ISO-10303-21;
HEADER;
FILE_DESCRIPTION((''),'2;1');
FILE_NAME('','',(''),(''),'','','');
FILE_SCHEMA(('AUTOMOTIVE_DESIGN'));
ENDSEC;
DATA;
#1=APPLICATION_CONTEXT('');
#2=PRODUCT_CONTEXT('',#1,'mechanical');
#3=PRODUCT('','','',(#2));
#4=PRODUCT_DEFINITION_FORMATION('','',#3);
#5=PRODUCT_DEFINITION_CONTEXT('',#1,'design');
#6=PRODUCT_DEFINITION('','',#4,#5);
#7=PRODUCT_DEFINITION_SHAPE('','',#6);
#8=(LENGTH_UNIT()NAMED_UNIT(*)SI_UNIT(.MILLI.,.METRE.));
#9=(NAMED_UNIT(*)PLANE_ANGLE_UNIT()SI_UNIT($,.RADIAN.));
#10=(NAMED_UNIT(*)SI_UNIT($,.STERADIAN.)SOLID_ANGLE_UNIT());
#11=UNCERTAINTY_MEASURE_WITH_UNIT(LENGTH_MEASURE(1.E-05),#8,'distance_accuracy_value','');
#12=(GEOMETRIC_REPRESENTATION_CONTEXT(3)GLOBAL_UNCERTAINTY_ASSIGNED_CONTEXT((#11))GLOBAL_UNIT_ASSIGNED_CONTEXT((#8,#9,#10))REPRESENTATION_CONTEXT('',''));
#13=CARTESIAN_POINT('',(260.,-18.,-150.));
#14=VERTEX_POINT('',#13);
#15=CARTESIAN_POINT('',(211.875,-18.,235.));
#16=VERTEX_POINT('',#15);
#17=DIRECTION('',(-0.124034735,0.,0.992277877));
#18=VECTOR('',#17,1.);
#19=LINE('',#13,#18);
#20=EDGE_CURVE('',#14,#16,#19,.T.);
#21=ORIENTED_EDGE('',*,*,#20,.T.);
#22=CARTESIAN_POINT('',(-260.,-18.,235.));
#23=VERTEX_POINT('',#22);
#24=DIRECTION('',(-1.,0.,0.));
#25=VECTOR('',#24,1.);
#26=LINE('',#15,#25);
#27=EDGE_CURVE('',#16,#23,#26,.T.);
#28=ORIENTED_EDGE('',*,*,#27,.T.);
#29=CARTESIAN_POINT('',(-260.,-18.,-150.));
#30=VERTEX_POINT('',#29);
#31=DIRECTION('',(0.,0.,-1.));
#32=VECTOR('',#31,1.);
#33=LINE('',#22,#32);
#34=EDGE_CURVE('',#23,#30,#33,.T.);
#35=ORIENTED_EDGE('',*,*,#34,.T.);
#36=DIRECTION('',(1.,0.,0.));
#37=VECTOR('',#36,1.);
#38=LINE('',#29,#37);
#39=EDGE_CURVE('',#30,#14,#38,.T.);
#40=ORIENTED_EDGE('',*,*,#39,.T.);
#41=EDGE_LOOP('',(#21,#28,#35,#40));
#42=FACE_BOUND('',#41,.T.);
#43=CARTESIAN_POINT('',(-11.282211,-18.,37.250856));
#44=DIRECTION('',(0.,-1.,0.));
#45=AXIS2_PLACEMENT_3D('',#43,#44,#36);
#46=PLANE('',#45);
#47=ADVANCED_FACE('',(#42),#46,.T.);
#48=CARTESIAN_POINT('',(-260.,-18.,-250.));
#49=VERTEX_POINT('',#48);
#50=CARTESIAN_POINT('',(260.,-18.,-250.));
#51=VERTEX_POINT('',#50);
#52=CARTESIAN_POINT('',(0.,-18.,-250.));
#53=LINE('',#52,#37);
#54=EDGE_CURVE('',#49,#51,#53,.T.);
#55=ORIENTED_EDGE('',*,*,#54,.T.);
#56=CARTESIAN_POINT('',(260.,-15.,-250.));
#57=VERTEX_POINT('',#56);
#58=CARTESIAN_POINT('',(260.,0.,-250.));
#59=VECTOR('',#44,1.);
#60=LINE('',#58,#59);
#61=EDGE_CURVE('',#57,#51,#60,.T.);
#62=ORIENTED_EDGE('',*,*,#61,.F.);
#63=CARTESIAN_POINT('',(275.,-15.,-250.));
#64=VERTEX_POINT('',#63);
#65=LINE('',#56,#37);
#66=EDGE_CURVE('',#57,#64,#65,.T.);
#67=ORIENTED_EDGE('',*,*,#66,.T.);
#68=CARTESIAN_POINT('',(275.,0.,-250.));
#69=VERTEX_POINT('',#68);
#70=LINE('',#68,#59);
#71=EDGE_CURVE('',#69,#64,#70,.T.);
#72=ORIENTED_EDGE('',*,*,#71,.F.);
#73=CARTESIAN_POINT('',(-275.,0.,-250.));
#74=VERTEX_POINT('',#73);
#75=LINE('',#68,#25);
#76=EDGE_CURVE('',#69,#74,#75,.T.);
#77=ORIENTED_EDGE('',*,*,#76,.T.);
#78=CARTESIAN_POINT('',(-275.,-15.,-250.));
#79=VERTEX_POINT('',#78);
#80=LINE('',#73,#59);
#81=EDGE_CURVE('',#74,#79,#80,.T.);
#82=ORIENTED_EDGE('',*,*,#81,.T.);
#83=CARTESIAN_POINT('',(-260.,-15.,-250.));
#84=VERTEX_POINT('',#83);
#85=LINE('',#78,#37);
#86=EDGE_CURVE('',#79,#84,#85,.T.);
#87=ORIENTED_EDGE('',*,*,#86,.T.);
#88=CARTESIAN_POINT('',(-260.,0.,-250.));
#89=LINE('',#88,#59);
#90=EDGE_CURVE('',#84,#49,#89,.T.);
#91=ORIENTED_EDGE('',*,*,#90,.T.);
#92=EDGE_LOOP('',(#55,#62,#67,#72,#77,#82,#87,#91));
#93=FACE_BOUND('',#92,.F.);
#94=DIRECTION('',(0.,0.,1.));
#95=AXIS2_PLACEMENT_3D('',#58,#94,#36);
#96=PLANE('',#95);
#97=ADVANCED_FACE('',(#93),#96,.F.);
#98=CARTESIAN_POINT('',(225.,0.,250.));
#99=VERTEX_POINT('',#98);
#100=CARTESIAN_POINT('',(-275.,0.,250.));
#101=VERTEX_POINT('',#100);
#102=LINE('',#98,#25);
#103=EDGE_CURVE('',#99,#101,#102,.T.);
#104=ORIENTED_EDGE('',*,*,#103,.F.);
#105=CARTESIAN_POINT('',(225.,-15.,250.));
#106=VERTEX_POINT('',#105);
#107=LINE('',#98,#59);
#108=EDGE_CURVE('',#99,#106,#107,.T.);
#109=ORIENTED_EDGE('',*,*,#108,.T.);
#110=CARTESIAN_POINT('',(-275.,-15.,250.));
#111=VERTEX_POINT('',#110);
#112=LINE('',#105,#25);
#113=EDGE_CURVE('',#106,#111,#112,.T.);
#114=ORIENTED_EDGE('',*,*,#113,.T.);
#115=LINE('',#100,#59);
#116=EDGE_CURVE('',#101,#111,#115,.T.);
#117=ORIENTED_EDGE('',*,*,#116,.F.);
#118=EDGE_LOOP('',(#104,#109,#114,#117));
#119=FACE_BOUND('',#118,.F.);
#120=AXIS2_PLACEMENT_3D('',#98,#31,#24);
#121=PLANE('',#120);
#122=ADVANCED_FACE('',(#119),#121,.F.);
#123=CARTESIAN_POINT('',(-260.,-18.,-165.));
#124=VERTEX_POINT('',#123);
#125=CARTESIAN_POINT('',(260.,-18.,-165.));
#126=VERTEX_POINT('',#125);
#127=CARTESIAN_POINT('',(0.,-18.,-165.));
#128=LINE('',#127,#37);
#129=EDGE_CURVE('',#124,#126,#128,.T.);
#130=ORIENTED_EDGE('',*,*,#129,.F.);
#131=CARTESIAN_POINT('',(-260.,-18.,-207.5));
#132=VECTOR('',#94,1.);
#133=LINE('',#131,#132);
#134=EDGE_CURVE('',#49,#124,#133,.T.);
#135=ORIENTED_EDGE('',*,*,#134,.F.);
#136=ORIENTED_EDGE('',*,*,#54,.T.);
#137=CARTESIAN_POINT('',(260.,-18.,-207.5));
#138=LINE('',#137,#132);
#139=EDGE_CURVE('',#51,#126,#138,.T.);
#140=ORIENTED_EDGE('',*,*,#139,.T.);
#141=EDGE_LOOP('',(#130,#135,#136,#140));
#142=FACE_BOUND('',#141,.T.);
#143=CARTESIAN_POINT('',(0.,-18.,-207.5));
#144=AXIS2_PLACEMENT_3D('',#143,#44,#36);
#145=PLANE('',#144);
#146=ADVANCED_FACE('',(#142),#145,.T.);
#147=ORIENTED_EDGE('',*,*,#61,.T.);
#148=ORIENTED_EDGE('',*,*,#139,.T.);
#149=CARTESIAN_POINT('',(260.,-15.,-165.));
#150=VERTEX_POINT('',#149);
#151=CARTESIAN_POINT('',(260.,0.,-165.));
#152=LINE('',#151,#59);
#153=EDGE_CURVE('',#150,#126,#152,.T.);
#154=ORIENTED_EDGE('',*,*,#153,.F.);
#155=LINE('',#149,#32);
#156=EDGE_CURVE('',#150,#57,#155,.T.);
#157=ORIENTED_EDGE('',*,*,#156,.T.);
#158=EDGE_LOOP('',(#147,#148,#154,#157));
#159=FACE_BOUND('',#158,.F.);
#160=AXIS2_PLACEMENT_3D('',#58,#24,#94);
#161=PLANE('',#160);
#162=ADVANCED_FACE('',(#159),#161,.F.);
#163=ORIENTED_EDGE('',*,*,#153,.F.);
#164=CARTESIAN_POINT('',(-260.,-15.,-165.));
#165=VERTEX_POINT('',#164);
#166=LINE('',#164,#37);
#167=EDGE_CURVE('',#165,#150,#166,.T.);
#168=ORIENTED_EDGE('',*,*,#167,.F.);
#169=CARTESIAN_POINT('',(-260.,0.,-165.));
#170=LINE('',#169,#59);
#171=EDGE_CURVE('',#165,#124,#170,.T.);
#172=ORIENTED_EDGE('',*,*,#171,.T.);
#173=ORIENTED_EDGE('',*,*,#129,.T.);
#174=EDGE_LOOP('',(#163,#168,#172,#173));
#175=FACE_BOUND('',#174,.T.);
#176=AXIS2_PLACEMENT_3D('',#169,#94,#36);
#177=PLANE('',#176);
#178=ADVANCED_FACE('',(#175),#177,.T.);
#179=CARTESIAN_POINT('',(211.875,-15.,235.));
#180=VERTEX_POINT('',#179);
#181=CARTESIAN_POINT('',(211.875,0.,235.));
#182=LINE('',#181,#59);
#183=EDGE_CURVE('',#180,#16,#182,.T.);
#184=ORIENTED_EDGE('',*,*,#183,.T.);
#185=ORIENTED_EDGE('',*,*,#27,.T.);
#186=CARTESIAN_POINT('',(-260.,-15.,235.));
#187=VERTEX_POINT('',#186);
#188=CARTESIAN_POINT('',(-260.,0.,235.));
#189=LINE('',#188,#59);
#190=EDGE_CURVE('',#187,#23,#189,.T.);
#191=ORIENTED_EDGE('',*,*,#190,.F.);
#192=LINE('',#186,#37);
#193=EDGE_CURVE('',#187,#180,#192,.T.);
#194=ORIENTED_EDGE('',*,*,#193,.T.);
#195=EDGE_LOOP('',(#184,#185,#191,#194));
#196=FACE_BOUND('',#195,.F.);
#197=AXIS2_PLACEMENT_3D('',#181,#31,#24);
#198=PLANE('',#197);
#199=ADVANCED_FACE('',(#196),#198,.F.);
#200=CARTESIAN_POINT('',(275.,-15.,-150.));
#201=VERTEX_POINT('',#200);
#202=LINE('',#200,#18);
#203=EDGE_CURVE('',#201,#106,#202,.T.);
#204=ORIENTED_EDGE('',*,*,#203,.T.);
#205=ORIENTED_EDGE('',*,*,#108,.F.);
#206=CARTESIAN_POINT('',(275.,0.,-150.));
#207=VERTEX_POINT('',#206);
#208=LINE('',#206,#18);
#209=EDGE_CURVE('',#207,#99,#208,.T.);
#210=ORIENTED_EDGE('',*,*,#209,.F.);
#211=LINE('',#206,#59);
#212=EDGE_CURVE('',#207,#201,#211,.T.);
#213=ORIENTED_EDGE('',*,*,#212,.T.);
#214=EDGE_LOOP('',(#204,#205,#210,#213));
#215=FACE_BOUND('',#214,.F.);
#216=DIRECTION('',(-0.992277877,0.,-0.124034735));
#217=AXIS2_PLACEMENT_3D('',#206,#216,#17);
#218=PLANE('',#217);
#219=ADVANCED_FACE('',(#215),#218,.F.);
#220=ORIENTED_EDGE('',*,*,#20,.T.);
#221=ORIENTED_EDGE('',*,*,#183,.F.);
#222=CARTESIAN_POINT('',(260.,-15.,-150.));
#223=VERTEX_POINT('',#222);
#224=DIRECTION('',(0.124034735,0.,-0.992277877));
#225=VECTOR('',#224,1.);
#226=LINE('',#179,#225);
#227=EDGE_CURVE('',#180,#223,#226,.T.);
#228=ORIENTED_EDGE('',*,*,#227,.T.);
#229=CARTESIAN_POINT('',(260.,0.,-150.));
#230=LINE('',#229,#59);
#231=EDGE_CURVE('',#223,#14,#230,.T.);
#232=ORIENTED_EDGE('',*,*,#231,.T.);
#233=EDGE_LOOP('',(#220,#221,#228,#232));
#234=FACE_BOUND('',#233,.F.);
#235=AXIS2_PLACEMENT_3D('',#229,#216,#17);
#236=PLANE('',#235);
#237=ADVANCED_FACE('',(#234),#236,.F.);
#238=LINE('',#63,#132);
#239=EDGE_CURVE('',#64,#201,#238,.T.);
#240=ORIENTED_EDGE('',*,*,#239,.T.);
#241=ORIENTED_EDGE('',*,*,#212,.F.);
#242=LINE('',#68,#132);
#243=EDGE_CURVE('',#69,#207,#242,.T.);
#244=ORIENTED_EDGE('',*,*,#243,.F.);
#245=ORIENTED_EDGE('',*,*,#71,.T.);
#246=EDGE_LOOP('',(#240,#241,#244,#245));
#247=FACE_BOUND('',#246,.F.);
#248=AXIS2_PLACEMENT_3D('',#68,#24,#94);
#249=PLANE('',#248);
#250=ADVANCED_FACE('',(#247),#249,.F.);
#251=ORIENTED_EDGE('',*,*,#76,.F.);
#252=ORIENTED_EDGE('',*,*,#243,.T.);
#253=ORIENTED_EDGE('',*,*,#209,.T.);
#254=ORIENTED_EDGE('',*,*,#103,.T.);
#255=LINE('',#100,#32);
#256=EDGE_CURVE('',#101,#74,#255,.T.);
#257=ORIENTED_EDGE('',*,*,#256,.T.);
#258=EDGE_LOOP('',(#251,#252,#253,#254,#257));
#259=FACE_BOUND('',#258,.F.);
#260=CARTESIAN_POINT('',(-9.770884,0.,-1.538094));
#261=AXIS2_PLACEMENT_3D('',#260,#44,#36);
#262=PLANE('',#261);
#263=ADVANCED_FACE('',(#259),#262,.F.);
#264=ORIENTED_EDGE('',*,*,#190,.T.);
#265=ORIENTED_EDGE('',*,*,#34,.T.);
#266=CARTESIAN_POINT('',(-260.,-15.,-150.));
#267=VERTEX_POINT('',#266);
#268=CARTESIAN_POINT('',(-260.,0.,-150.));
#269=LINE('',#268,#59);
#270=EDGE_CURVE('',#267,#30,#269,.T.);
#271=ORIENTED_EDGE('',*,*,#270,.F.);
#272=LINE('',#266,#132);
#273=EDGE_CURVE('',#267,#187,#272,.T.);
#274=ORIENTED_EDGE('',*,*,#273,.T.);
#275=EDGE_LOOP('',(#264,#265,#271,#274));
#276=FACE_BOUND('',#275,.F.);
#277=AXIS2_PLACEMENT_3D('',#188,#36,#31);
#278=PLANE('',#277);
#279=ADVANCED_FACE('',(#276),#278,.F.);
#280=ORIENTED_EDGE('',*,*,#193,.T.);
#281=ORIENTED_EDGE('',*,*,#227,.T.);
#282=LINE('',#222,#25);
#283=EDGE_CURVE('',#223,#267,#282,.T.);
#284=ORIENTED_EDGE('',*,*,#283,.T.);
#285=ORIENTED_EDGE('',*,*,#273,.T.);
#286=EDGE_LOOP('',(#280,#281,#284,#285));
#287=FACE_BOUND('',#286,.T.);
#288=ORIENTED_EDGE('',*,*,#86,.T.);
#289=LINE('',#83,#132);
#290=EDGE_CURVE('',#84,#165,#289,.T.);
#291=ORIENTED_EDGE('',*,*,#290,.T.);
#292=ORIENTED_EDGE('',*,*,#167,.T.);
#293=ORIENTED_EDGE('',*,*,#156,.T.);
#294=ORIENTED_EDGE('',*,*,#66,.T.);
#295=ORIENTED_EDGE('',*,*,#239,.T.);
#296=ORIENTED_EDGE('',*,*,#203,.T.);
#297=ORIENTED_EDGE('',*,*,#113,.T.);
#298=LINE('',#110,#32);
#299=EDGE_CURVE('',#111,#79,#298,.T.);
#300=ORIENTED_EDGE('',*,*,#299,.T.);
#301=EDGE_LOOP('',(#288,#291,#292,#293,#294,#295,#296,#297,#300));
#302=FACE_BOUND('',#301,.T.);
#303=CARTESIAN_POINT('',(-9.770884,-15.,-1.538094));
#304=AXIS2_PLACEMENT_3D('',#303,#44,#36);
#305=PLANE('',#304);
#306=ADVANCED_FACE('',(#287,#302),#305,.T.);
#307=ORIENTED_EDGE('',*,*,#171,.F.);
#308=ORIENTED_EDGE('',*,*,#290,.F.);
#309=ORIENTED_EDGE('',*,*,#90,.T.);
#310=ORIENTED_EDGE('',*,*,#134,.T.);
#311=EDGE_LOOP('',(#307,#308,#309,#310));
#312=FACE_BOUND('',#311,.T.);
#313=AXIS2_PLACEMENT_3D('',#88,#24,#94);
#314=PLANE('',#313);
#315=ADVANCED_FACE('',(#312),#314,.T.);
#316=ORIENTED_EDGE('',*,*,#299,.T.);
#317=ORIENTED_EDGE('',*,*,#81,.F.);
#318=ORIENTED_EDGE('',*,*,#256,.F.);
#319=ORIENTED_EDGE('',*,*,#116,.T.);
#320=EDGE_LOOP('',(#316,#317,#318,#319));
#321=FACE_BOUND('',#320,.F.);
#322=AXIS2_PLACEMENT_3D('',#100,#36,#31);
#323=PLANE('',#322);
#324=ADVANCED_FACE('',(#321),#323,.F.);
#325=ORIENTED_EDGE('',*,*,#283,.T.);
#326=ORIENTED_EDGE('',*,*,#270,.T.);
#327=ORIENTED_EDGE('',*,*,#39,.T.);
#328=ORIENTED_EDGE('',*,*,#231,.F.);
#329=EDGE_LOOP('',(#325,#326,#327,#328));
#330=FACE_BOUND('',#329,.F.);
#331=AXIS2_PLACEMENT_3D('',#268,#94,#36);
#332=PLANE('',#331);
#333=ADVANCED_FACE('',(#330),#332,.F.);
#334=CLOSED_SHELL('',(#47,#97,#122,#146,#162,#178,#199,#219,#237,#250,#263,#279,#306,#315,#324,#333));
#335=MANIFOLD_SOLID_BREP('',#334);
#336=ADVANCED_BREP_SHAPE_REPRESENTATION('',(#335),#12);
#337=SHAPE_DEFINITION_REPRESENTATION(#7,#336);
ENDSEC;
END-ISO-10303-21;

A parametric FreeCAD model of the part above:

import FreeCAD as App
import Part
import Sketcher

V = App.Vector
Q = App.Units.Quantity

doc = App.newDocument("Part")
body = doc.addObject("PartDesign::Body", "Body")

sketch1 = doc.addObject("Sketcher::SketchObject", "Sketch")
body.addObject(sketch1)
sketch1.AttachmentSupport = (doc.XZ_Plane, [""])
sketch1.MapMode = "FlatFace"
sketch1.addGeometry([
    Part.LineSegment(V(-260, -150, 0), V(260, -150, 0)),
    Part.LineSegment(V(260, -150, 0), V(211.875, 235, 0)),
    Part.LineSegment(V(211.875, 235, 0), V(-260, 235, 0)),
    Part.LineSegment(V(-260, 235, 0), V(-260, -150, 0)),
], False)
sketch1.addConstraint([
    Sketcher.Constraint("Coincident", 0, 2, 1, 1),
    Sketcher.Constraint("Coincident", 1, 2, 2, 1),
    Sketcher.Constraint("Coincident", 2, 2, 3, 1),
    Sketcher.Constraint("Coincident", 3, 2, 0, 1),
    Sketcher.Constraint("Horizontal", 0),
    Sketcher.Constraint("Horizontal", 2),
    Sketcher.Constraint("Vertical", 3),
    Sketcher.Constraint("DistanceX", 0, 1, 0, 2, Q("520 mm")),
    Sketcher.Constraint("DistanceY", 3, 2, 3, 1, Q("385 mm")),
    Sketcher.Constraint("DistanceX", -1, 1, 0, 2, Q("260 mm")),
    Sketcher.Constraint("DistanceY", 0, 2, -1, 1, Q("150 mm")),
    Sketcher.Constraint("DistanceX", 2, 2, 2, 1, Q("471.875 mm")),
])
pad1 = doc.addObject("PartDesign::Pad", "Pad")
body.addObject(pad1)
pad1.Profile = sketch1
pad1.Length = 18
body2 = doc.addObject("PartDesign::Body", "Body001")

sketch2 = doc.addObject("Sketcher::SketchObject", "Sketch001")
body2.addObject(sketch2)
sketch2.AttachmentSupport = (doc.getObject("XZ_Plane001"), [""])
sketch2.MapMode = "FlatFace"
sketch2.addGeometry([
    Part.LineSegment(V(-260, -165, 0), V(-260, -250, 0)),
    Part.LineSegment(V(-260, -250, 0), V(260, -250, 0)),
    Part.LineSegment(V(260, -250, 0), V(260, -165, 0)),
    Part.LineSegment(V(260, -165, 0), V(-260, -165, 0)),
], False)
sketch2.addConstraint([
    Sketcher.Constraint("Coincident", 0, 2, 1, 1),
    Sketcher.Constraint("Coincident", 1, 2, 2, 1),
    Sketcher.Constraint("Coincident", 2, 2, 3, 1),
    Sketcher.Constraint("Coincident", 3, 2, 0, 1),
    Sketcher.Constraint("Vertical", 0),
    Sketcher.Constraint("Horizontal", 1),
    Sketcher.Constraint("Vertical", 2),
    Sketcher.Constraint("Horizontal", 3),
    Sketcher.Constraint("DistanceX", 1, 1, 1, 2, Q("520 mm")),
    Sketcher.Constraint("DistanceY", 0, 2, 0, 1, Q("85 mm")),
    Sketcher.Constraint("DistanceX", 0, 2, -1, 1, Q("260 mm")),
    Sketcher.Constraint("DistanceY", 0, 2, -1, 1, Q("250 mm")),
])
pad2 = doc.addObject("PartDesign::Pad", "Pad001")
body2.addObject(pad2)
pad2.Profile = sketch2
pad2.Length = 18
body.AllowCompound = True
doc.recompute()

boolean = doc.addObject("PartDesign::Boolean", "Boolean")
body.addObject(boolean)
boolean.Type = "Fuse"
boolean.addObjects([body2])

sketch3 = doc.addObject("Sketcher::SketchObject", "Sketch002")
body.addObject(sketch3)
sketch3.AttachmentSupport = (doc.XZ_Plane, [""])
sketch3.MapMode = "FlatFace"
sketch3.addGeometry([
    Part.LineSegment(V(275, -150, 0), V(225, 250, 0)),
    Part.LineSegment(V(225, 250, 0), V(-275, 250, 0)),
    Part.LineSegment(V(-275, 250, 0), V(-275, -250, 0)),
    Part.LineSegment(V(-275, -250, 0), V(-260, -250, 0)),
    Part.LineSegment(V(-260, -250, 0), V(-260, -165, 0)),
    Part.LineSegment(V(-260, -165, 0), V(260, -165, 0)),
    Part.LineSegment(V(260, -165, 0), V(260, -250, 0)),
    Part.LineSegment(V(260, -250, 0), V(275, -250, 0)),
    Part.LineSegment(V(275, -250, 0), V(275, -150, 0)),
    Part.LineSegment(V(-260, 235, 0), V(211.875, 235, 0)),
    Part.LineSegment(V(211.875, 235, 0), V(260, -150, 0)),
    Part.LineSegment(V(260, -150, 0), V(-260, -150, 0)),
    Part.LineSegment(V(-260, -150, 0), V(-260, 235, 0)),
], False)
sketch3.addConstraint([
    Sketcher.Constraint("Coincident", 0, 2, 1, 1),
    Sketcher.Constraint("Coincident", 1, 2, 2, 1),
    Sketcher.Constraint("Coincident", 2, 2, 3, 1),
    Sketcher.Constraint("Coincident", 3, 2, 4, 1),
    Sketcher.Constraint("Coincident", 4, 2, 5, 1),
    Sketcher.Constraint("Coincident", 5, 2, 6, 1),
    Sketcher.Constraint("Coincident", 6, 2, 7, 1),
    Sketcher.Constraint("Coincident", 7, 2, 8, 1),
    Sketcher.Constraint("Coincident", 8, 2, 0, 1),
    Sketcher.Constraint("Coincident", 9, 2, 10, 1),
    Sketcher.Constraint("Coincident", 10, 2, 11, 1),
    Sketcher.Constraint("Coincident", 11, 2, 12, 1),
    Sketcher.Constraint("Coincident", 12, 2, 9, 1),
    Sketcher.Constraint("Horizontal", 1),
    Sketcher.Constraint("Vertical", 2),
    Sketcher.Constraint("Horizontal", 3),
    Sketcher.Constraint("Vertical", 4),
    Sketcher.Constraint("Horizontal", 5),
    Sketcher.Constraint("Vertical", 6),
    Sketcher.Constraint("Horizontal", 7),
    Sketcher.Constraint("Vertical", 8),
    Sketcher.Constraint("Horizontal", 9),
    Sketcher.Constraint("Horizontal", 11),
    Sketcher.Constraint("Vertical", 12),
    Sketcher.Constraint("Symmetric", 1, 2, 7, 2, -1, 1),
    Sketcher.Constraint("Symmetric", 3, 2, 6, 2, -2),
    Sketcher.Constraint("Parallel", 0, 10),
    Sketcher.Constraint("Horizontal", 8, 2, 10, 2),
    Sketcher.Constraint("Vertical", 6, 2, 10, 2),
    Sketcher.Constraint("Vertical", 4, 2, 11, 2),
    Sketcher.Constraint("Equal", 1, 2),
    Sketcher.Constraint("DistanceX", 1, 2, 1, 1, Q("500 mm")),
    Sketcher.Constraint("DistanceX", 3, 1, 3, 2, Q("15 mm")),
    Sketcher.Constraint("DistanceX", 5, 1, 5, 2, Q("520 mm")),
    Sketcher.Constraint("DistanceY", 4, 1, 4, 2, Q("85 mm")),
    Sketcher.Constraint("DistanceY", 8, 1, 8, 2, Q("100 mm")),
    Sketcher.Constraint("DistanceY", 12, 1, 12, 2, Q("385 mm")),
])
pad3 = doc.addObject("PartDesign::Pad", "Pad002")
body.addObject(pad3)
pad3.Profile = sketch3
pad3.Length = 15

doc.recompute()
